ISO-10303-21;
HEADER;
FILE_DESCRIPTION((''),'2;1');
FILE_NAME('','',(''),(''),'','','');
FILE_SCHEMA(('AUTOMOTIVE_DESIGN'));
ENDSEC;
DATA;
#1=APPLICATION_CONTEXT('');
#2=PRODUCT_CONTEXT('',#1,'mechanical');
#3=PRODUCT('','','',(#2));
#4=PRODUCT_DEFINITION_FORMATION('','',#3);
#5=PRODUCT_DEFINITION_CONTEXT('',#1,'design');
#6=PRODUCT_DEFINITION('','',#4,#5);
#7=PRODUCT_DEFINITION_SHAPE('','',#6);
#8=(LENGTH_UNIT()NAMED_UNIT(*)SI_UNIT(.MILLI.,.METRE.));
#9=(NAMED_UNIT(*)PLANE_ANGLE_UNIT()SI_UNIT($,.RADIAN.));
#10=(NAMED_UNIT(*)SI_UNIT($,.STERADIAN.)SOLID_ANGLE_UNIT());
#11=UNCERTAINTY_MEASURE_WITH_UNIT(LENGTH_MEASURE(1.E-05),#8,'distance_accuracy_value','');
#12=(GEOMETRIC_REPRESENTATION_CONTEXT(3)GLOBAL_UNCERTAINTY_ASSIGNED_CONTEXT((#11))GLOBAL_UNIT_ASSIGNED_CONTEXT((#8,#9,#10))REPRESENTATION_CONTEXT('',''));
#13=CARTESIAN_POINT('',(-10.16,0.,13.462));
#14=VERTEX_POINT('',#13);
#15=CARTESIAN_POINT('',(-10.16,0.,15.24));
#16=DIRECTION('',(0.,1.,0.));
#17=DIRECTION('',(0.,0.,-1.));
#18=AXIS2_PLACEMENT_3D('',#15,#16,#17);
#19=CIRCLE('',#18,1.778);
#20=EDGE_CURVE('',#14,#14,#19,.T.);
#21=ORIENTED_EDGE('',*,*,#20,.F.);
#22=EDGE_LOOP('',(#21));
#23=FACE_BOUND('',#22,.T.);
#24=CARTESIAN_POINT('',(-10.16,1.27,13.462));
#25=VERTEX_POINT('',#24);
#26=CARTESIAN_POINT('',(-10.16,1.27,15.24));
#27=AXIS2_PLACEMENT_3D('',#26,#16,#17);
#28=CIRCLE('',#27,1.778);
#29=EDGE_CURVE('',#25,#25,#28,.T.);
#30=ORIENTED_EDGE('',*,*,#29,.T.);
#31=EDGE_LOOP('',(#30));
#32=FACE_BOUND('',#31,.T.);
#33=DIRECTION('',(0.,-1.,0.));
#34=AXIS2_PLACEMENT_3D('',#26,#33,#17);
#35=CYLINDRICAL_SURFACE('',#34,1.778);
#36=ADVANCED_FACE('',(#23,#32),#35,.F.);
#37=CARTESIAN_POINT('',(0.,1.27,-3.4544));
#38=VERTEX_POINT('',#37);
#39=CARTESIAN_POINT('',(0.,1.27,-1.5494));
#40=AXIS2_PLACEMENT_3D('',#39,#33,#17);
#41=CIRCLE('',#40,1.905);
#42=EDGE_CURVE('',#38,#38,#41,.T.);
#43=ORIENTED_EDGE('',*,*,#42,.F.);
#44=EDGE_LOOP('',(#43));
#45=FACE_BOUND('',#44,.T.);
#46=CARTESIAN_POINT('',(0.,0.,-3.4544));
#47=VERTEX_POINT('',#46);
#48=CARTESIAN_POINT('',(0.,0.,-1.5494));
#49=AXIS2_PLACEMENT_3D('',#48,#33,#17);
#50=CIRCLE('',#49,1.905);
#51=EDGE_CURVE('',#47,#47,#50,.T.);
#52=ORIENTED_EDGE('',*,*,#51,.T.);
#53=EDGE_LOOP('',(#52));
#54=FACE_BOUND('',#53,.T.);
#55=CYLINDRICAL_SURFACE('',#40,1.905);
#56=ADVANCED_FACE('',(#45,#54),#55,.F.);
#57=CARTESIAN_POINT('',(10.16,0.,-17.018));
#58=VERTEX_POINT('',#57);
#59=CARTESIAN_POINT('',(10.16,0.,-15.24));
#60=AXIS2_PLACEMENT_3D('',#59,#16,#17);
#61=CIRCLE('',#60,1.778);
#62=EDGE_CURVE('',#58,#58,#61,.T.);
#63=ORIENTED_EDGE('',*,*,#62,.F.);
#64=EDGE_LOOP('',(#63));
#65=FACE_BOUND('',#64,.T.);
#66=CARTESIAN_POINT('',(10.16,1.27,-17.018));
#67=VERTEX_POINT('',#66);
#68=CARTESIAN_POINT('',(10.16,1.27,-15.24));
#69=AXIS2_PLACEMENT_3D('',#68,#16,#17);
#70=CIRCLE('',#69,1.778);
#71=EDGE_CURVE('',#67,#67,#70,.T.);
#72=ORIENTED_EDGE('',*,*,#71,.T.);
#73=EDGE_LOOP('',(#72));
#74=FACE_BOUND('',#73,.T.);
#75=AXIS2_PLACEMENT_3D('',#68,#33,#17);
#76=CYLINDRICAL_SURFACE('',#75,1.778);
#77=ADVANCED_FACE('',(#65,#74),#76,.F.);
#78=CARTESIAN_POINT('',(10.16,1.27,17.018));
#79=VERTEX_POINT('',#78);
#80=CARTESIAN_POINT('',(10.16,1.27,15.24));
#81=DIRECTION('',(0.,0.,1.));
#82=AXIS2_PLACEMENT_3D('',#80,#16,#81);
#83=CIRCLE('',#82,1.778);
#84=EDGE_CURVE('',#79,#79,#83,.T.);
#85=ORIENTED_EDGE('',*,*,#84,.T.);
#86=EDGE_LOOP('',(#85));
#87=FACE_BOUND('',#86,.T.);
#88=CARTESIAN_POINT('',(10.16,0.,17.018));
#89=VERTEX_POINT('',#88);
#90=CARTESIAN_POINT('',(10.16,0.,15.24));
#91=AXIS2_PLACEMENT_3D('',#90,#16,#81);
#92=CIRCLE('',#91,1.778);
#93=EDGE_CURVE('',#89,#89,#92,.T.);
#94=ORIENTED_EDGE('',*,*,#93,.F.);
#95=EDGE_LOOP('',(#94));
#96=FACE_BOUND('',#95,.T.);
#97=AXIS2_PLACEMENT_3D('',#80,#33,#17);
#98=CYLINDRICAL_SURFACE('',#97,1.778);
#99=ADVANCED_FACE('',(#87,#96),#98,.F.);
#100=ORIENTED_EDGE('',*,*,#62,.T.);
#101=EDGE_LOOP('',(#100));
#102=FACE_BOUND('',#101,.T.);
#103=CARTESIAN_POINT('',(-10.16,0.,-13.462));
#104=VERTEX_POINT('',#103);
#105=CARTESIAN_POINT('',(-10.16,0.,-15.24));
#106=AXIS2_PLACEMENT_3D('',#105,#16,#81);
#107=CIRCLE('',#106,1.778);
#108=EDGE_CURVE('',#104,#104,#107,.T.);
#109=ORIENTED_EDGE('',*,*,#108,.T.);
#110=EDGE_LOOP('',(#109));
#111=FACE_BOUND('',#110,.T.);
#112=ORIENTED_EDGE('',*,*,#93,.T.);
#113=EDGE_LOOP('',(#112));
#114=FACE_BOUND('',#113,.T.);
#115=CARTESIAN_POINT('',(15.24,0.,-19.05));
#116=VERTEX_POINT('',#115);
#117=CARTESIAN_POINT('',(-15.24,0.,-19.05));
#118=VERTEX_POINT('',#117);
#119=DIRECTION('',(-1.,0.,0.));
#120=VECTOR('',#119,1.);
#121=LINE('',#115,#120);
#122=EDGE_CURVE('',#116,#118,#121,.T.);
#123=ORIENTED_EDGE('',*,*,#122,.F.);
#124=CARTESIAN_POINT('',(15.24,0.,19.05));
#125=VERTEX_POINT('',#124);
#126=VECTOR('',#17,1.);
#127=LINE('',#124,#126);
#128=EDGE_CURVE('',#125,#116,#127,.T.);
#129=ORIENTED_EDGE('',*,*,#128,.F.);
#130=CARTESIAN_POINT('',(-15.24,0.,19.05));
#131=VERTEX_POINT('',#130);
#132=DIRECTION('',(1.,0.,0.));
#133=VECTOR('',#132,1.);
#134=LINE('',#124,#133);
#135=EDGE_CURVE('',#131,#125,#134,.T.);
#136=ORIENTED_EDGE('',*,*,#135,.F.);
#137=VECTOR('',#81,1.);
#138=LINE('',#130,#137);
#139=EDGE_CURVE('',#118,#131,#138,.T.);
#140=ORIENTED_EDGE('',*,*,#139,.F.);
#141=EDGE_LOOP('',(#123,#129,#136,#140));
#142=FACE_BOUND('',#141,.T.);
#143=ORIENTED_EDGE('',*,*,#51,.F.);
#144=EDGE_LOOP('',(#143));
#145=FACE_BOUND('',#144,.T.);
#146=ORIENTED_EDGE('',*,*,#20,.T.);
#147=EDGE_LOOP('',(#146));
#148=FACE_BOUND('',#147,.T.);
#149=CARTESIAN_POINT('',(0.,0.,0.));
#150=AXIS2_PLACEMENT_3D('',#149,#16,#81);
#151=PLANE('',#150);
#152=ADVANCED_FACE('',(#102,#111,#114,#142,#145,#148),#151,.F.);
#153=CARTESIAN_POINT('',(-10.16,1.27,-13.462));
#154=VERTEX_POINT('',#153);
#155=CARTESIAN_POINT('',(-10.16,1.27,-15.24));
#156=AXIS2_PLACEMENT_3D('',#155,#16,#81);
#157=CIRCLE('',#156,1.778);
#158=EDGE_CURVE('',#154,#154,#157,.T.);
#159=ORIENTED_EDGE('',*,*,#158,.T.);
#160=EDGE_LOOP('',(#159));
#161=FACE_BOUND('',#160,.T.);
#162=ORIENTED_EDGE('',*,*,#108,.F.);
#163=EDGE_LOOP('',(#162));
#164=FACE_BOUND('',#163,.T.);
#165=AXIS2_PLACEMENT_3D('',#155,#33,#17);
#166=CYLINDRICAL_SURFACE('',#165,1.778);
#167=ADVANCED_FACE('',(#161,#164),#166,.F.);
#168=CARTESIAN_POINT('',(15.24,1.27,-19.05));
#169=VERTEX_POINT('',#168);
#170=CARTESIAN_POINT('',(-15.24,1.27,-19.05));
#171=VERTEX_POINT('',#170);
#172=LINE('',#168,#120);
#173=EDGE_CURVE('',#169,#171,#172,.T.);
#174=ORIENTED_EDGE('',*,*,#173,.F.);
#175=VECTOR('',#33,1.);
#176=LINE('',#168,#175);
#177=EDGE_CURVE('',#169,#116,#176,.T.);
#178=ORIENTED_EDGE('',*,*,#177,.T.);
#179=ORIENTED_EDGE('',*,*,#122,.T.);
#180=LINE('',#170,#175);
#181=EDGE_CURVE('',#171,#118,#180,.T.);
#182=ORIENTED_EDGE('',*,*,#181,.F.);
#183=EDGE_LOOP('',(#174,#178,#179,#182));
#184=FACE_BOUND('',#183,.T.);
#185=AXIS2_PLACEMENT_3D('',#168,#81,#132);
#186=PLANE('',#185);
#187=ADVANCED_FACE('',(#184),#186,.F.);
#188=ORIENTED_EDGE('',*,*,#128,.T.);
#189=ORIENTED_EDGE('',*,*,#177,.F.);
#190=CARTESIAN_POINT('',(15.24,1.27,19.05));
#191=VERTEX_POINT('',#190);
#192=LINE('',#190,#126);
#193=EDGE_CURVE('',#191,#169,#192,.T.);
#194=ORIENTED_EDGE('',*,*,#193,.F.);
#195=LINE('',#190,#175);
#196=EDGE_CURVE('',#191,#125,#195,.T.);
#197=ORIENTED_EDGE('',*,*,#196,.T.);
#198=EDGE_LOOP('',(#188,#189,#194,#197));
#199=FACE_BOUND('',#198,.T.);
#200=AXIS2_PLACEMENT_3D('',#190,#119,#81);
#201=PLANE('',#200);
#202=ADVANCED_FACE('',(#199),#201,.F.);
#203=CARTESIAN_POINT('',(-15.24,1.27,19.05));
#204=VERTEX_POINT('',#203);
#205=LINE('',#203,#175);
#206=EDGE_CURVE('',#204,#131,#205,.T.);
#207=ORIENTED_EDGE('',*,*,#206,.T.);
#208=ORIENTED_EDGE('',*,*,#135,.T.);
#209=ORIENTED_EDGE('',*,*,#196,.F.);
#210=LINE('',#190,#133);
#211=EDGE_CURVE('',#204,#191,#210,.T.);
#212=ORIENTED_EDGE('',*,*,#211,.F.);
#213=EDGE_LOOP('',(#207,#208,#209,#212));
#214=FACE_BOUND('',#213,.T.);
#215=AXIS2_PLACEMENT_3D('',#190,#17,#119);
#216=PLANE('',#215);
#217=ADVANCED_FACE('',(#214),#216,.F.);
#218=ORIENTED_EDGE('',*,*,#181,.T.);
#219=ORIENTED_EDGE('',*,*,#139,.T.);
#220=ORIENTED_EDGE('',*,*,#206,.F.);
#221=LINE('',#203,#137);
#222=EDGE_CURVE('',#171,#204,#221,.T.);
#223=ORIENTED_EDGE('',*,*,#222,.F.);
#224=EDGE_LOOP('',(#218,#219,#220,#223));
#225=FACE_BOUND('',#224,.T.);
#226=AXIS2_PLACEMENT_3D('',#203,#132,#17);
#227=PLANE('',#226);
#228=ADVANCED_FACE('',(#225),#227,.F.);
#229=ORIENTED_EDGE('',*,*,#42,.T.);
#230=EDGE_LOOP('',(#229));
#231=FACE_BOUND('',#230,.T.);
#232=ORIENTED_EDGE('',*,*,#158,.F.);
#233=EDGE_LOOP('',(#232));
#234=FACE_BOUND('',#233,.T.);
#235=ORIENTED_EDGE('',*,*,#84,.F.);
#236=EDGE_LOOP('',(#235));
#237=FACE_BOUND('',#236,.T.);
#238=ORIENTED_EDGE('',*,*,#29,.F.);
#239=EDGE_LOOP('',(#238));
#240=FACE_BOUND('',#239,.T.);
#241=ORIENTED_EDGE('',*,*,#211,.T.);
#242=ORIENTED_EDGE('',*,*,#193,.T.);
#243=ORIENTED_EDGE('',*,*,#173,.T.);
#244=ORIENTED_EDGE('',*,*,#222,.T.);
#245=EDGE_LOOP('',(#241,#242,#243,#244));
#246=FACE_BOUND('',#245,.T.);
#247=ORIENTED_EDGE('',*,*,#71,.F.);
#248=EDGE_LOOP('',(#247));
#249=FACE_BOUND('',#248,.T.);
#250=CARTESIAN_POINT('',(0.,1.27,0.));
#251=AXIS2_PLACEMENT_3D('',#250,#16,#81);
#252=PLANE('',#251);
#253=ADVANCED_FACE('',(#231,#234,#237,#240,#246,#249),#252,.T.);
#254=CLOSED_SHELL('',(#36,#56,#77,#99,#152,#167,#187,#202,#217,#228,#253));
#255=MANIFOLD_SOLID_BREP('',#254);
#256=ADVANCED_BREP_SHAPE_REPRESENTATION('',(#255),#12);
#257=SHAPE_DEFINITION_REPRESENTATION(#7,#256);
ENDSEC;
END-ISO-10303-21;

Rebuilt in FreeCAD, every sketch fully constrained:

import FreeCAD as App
import Part
import Sketcher
Q = App.Units.Quantity

doc = App.newDocument("Part")
body = doc.addObject("PartDesign::Body", "Body")

# Sketch on XZ plane
sketch1 = doc.addObject("Sketcher::SketchObject", "Sketch")
body.addObject(sketch1)
sketch1.AttachmentSupport = (doc.XZ_Plane, [""])
sketch1.MapMode = "FlatFace"
sketch1.addGeometry([
    Part.LineSegment(App.Vector(-15.2, -19.1, 0), App.Vector(-15.2, 19.1, 0)),  # 0
    Part.LineSegment(App.Vector(-15.2, 19.1, 0), App.Vector(15.2, 19.1, 0)),  # 1
    Part.LineSegment(App.Vector(15.2, 19.1, 0), App.Vector(15.2, -19.1, 0)),  # 2
    Part.LineSegment(App.Vector(15.2, -19.1, 0), App.Vector(-15.2, -19.1, 0)),  # 3
    Part.Circle(App.Vector(-10.2, 15.2, 0), App.Vector(0, 0, 1), 1.8),  # 4
    Part.Circle(App.Vector(10.2, 15.2, 0), App.Vector(0, 0, 1), 1.8),  # 5
    Part.Circle(App.Vector(-10.2, -15.2, 0), App.Vector(0, 0, 1), 1.8),  # 6
    Part.Circle(App.Vector(10.2, -15.2, 0), App.Vector(0, 0, 1), 1.8),  # 7
], False)
sketch1.addConstraint([
    Sketcher.Constraint("Coincident", 0, 2, 1, 1),
    Sketcher.Constraint("Coincident", 1, 2, 2, 1),
    Sketcher.Constraint("Coincident", 2, 2, 3, 1),
    Sketcher.Constraint("Coincident", 3, 2, 0, 1),
    Sketcher.Constraint("Vertical", 0),
    Sketcher.Constraint("Horizontal", 1),
    Sketcher.Constraint("Vertical", 2),
    Sketcher.Constraint("Horizontal", 3),
    Sketcher.Constraint("Equal", 4, 5),
    Sketcher.Constraint("Equal", 5, 6),
    Sketcher.Constraint("Equal", 6, 7),
    Sketcher.Constraint("Symmetric", 5, 3, 6, 3, -1, 1),
    Sketcher.Constraint("Symmetric", 4, 3, 7, 3, -1, 1),
    Sketcher.Constraint("Symmetric", 0, 2, 2, 2, -1, 1),
    Sketcher.Constraint("Symmetric", 4, 3, 5, 3, -2),
    Sketcher.Constraint("Diameter", 4, Q("0.14 in")),
    Sketcher.Constraint("DistanceX", 1, 1, 1, 2, Q("1.2 in")),
    Sketcher.Constraint("DistanceY", 0, 1, 0, 2, Q("1.5 in")),
    Sketcher.Constraint("DistanceX", 0, 2, 5, 3, Q("1 in")),
    Sketcher.Constraint("DistanceY", -1, 1, 4, 3, Q("0.6 in")),
])
pad1 = doc.addObject("PartDesign::Pad", "Pad")
body.addObject(pad1)
pad1.Profile = sketch1
pad1.Length = Q("0.05 in")
pad1.Reversed = True

# Sketch on XZ plane
sketch2 = doc.addObject("Sketcher::SketchObject", "Sketch001")
body.addObject(sketch2)
sketch2.AttachmentSupport = (doc.XZ_Plane, [""])
sketch2.MapMode = "FlatFace"
sketch2.addGeometry([
    Part.Circle(App.Vector(-10.2, -15.2, 0), App.Vector(0, 0, 1), 1.8),  # 0
    Part.Circle(App.Vector(10.2, -15.2, 0), App.Vector(0, 0, 1), 1.8),  # 1
    Part.Circle(App.Vector(10.2, 15.2, 0), App.Vector(0, 0, 1), 1.8),  # 2
    Part.Circle(App.Vector(-10.2, 15.2, 0), App.Vector(0, 0, 1), 1.8),  # 3
    Part.Circle(App.Vector(0, -1.5, 0), App.Vector(0, 0, 1), 1.9),  # 4
], False)
sketch2.addConstraint([
    Sketcher.Constraint("Equal", 0, 1),
    Sketcher.Constraint("Equal", 1, 2),
    Sketcher.Constraint("Equal", 2, 3),
    Sketcher.Constraint("Symmetric", 0, 3, 2, 3, -1, 1),
    Sketcher.Constraint("Symmetric", 1, 3, 3, 3, -1, 1),
    Sketcher.Constraint("Symmetric", 0, 3, 1, 3, -2),
    Sketcher.Constraint("PointOnObject", 4, 3, -2),
    Sketcher.Constraint("Diameter", 0, Q("0.14 in")),
    Sketcher.Constraint("Diameter", 4, Q("0.15 in")),
    Sketcher.Constraint("DistanceX", 0, 3, -1, 1, Q("0.4 in")),
    Sketcher.Constraint("DistanceY", 0, 3, -1, 1, Q("0.6 in")),
    Sketcher.Constraint("DistanceY", 4, 3, -1, 1, Q("0.061 in")),
])
pocket1 = doc.addObject("PartDesign::Pocket", "Pocket")
body.addObject(pocket1)
pocket1.Profile = sketch2
pocket1.Type = "ThroughAll"

doc.recompute()
